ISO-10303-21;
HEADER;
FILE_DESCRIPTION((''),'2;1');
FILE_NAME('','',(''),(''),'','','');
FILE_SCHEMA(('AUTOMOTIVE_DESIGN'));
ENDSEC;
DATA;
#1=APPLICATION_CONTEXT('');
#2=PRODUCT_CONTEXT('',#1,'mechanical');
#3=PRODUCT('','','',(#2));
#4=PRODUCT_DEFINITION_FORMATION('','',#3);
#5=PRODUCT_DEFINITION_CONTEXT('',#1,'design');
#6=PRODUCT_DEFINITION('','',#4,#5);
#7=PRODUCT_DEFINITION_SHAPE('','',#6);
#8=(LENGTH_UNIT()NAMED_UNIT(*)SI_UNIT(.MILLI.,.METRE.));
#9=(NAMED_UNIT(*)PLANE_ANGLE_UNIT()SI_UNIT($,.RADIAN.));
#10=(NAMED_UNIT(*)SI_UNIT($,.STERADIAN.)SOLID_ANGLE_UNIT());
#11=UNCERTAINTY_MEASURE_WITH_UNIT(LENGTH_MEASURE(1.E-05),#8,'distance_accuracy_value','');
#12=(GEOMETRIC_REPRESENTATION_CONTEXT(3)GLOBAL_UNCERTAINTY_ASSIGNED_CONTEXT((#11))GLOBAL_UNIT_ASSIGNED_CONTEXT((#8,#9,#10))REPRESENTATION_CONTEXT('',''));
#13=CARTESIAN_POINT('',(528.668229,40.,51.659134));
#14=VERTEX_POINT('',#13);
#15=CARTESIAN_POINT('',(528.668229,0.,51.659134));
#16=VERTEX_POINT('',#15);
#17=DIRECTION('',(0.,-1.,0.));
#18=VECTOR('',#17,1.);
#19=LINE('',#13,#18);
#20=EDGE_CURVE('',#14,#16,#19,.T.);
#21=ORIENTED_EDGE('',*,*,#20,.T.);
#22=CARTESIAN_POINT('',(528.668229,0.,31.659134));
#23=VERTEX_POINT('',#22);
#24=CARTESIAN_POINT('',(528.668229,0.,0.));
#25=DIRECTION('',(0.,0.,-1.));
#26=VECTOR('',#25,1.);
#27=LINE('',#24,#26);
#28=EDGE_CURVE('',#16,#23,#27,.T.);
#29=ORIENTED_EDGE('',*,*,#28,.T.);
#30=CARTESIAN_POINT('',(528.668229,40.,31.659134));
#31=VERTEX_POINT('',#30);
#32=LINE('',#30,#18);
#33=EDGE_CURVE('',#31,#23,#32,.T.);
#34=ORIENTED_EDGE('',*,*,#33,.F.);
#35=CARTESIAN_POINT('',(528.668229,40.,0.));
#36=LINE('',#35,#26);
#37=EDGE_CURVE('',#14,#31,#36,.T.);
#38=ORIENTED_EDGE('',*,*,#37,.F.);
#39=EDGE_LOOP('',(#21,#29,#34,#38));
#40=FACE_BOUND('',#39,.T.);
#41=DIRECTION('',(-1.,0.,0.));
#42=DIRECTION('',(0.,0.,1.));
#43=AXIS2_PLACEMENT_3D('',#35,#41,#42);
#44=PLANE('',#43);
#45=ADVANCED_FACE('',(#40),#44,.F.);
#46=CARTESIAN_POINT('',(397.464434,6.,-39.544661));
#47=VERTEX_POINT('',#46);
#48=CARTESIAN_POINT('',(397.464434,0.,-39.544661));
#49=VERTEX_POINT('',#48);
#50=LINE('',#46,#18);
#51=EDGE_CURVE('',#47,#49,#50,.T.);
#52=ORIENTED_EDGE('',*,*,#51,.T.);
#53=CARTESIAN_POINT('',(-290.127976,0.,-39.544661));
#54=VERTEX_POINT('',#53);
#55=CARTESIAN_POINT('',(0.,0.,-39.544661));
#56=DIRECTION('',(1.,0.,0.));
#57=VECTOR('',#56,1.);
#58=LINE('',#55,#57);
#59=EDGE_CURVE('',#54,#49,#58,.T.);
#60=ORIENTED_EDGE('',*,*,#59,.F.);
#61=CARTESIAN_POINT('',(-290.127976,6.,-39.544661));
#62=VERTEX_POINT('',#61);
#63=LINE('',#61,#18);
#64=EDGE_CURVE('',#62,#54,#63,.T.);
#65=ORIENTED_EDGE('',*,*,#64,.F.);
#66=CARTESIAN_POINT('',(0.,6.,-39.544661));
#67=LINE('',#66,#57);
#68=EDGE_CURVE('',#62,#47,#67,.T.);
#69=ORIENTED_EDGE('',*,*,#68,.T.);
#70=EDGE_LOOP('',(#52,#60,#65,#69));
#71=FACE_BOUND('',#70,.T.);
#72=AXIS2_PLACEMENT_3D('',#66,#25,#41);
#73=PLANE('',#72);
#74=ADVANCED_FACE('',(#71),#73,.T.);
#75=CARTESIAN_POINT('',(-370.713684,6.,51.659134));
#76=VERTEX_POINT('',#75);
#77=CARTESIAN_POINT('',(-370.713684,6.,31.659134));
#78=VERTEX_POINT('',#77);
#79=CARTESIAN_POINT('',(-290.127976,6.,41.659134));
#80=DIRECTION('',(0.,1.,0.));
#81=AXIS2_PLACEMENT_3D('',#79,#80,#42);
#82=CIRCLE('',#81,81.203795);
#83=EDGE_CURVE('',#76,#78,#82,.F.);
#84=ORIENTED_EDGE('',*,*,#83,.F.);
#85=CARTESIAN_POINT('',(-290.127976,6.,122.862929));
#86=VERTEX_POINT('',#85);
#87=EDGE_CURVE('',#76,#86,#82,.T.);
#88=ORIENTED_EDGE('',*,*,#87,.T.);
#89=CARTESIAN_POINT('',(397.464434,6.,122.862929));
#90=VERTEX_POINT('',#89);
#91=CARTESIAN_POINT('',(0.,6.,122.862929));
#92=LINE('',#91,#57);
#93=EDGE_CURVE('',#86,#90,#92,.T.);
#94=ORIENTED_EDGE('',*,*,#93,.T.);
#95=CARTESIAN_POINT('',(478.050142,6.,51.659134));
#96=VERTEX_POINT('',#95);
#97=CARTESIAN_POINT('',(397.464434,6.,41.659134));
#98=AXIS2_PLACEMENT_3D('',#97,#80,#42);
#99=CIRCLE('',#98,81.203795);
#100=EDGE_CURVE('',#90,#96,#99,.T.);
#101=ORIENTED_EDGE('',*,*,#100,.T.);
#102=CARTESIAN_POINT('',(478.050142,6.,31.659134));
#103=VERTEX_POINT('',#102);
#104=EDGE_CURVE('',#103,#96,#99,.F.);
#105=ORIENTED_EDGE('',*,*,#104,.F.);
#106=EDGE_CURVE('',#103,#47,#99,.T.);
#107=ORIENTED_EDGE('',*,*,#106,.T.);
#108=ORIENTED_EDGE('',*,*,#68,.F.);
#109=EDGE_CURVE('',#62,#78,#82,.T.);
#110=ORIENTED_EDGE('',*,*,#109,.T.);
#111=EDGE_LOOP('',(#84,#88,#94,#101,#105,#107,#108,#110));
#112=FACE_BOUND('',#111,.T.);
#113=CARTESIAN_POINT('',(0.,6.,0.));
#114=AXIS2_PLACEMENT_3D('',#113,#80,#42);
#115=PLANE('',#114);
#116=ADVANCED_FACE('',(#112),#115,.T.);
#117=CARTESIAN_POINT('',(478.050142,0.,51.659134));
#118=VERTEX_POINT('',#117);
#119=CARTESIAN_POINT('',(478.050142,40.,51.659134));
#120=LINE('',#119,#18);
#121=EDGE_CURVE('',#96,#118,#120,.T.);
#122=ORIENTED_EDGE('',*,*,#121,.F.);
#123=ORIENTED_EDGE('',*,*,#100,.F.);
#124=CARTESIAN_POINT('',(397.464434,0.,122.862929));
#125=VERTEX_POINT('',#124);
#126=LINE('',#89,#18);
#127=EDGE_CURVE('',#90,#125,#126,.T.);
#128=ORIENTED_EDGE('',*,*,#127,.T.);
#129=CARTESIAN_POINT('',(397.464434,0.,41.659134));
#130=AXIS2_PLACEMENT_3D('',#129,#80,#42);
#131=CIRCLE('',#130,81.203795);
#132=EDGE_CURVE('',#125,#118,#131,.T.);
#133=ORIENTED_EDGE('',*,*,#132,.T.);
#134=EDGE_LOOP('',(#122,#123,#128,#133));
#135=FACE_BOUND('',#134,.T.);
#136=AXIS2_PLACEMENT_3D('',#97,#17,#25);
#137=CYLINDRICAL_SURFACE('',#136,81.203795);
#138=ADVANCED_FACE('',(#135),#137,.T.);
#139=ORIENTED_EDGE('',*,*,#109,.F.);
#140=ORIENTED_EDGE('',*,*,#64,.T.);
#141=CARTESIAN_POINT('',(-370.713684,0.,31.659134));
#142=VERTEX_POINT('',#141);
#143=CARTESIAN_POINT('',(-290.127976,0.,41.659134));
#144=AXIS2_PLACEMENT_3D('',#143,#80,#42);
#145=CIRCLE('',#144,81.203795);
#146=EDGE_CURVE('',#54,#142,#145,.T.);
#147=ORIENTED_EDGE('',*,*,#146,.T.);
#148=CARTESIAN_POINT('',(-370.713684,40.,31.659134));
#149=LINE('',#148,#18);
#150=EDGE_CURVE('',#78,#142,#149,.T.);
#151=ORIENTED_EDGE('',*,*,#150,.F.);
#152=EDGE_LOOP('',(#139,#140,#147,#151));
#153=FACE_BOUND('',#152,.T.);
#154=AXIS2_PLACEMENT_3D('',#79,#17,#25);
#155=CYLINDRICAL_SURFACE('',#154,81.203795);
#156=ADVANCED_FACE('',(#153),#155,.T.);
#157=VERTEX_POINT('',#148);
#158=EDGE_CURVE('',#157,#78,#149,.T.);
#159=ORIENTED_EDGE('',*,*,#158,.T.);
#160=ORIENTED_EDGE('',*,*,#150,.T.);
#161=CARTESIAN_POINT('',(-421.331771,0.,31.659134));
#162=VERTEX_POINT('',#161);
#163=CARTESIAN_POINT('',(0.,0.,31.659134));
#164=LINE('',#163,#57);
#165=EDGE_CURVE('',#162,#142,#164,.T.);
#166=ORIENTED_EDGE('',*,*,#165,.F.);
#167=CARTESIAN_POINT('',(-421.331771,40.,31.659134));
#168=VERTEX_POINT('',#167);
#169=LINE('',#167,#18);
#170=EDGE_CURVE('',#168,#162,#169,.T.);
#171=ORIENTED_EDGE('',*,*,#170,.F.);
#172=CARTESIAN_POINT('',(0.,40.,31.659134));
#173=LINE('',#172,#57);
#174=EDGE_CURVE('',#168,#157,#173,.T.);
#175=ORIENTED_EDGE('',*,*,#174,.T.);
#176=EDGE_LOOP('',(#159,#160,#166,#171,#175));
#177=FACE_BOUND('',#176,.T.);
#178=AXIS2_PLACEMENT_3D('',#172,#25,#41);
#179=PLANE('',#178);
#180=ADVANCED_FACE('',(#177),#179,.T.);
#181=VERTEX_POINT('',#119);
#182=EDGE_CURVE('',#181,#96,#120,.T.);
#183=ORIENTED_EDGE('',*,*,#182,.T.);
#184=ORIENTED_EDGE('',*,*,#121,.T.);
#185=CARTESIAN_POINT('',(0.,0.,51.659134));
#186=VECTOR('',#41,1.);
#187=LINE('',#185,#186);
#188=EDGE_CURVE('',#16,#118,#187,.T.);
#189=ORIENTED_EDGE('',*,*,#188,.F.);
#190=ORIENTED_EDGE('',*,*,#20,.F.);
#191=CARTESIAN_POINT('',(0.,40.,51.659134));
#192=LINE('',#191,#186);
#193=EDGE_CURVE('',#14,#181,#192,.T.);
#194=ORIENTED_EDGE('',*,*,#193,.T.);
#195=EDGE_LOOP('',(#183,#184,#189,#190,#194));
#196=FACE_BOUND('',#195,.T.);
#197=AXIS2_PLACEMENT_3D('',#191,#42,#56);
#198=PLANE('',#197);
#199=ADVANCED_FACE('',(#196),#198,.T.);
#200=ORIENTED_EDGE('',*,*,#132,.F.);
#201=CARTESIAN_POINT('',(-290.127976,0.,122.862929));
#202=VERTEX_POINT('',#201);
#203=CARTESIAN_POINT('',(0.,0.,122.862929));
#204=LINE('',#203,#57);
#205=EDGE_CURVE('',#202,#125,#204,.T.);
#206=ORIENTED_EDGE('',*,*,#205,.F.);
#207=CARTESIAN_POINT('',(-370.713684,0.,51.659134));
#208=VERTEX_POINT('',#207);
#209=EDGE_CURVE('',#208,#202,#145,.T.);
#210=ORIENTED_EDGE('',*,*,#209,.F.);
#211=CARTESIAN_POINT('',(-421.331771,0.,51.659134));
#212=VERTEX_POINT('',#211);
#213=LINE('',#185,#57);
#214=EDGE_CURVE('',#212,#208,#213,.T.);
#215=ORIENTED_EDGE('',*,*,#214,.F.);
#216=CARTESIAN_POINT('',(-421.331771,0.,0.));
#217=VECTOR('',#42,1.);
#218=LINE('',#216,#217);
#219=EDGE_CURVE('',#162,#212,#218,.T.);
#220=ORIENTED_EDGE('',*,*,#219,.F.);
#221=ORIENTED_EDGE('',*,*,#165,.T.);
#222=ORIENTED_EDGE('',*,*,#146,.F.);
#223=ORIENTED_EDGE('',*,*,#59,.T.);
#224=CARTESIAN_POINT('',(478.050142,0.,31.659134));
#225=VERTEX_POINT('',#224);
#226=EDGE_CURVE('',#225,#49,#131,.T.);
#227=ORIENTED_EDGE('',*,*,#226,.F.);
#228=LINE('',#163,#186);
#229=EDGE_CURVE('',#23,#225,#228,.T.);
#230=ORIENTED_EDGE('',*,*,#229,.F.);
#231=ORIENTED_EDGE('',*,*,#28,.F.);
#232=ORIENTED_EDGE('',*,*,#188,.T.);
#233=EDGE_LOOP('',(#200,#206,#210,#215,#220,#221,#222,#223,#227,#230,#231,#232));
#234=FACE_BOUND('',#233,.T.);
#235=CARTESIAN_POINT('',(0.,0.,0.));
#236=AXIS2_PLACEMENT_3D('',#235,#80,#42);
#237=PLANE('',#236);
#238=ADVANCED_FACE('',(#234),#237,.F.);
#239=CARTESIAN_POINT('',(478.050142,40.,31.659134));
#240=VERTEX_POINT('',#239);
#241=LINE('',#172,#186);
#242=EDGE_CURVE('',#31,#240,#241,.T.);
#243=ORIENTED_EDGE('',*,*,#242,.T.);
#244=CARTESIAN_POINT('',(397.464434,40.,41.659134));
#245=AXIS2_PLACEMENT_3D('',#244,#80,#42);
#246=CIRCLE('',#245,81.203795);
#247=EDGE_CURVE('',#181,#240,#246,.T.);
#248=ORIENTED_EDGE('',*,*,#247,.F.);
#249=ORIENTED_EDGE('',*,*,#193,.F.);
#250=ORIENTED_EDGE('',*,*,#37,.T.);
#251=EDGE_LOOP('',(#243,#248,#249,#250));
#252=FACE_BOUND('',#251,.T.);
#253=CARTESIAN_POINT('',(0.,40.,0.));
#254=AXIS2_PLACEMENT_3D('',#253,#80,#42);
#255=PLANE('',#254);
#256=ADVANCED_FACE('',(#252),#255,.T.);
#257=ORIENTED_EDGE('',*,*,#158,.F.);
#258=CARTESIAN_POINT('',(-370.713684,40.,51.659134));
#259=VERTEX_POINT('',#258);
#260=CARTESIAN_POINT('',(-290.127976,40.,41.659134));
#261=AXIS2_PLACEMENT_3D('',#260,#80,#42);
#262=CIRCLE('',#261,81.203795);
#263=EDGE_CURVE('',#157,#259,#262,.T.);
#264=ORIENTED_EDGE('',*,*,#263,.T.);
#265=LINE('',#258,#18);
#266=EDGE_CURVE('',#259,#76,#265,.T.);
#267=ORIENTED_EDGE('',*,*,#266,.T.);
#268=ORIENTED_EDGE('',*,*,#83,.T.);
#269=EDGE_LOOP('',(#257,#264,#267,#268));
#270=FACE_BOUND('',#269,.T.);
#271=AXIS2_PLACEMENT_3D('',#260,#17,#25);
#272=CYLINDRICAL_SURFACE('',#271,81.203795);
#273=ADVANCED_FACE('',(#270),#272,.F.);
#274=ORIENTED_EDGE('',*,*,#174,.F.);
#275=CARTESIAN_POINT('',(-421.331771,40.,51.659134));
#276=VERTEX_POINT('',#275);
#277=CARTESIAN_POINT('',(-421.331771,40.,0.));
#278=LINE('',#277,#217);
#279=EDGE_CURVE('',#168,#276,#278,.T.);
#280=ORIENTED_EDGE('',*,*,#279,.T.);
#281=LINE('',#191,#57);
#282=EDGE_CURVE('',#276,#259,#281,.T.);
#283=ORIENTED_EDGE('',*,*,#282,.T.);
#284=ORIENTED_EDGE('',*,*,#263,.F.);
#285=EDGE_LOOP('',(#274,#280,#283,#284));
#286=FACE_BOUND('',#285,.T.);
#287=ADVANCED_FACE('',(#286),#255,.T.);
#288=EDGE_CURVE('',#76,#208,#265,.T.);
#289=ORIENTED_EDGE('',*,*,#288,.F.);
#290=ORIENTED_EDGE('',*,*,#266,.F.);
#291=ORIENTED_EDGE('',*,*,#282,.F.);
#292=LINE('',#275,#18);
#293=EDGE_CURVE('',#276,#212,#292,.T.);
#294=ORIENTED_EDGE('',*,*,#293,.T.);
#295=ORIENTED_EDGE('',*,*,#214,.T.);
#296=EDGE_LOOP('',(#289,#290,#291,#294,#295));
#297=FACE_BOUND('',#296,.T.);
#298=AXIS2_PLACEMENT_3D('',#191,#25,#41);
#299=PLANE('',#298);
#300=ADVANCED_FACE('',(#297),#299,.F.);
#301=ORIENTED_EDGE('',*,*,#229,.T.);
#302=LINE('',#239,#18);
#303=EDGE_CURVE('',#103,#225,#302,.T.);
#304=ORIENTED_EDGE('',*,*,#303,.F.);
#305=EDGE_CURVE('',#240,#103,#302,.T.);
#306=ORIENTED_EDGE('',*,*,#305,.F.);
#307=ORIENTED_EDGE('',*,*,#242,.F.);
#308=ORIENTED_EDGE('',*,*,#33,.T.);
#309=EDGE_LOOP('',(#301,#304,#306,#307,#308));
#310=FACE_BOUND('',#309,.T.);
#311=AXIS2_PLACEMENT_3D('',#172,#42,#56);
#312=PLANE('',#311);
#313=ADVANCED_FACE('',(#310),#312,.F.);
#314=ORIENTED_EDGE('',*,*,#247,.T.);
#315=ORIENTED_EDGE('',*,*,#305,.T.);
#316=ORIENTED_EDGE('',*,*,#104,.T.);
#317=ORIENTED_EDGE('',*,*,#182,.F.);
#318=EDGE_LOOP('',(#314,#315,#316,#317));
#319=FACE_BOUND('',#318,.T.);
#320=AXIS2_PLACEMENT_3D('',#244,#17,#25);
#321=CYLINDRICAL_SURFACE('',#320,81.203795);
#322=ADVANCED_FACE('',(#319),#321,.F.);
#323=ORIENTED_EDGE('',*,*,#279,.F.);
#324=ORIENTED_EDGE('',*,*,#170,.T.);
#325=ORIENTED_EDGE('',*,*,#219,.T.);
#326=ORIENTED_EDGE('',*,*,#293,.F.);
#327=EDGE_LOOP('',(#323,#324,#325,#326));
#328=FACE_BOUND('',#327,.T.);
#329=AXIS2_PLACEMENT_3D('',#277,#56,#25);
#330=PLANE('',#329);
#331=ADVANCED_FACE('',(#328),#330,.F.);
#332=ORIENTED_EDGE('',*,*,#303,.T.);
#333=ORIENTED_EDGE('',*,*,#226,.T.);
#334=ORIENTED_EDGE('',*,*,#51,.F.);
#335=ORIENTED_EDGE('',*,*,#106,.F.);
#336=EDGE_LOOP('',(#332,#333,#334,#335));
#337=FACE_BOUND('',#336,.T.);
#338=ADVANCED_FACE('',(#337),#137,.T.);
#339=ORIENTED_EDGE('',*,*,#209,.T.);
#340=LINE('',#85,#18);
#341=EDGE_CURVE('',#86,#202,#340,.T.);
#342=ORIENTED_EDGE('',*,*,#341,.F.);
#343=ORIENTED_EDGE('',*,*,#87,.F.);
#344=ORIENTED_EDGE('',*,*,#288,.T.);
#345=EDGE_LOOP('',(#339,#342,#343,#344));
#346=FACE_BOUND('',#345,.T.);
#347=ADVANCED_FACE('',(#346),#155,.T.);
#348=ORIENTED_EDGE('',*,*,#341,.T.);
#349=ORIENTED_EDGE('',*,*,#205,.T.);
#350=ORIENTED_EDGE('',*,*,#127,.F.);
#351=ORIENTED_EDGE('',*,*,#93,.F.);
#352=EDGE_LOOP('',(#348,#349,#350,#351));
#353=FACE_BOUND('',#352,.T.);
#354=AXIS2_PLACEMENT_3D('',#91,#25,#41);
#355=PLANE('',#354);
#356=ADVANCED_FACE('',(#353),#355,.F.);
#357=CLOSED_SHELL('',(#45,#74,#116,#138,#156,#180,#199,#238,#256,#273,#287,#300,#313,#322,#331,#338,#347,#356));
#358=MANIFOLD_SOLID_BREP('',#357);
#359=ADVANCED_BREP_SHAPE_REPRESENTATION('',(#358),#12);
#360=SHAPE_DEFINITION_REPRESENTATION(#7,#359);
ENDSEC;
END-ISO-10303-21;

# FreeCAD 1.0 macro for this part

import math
import FreeCAD as App
import Part
import Sketcher
from FreeCAD import Vector

doc = App.newDocument("Part")
params = doc.addObject("Spreadsheet::Sheet", "Params")
for row, (alias, value) in enumerate([
    ("pad1_length", "6 mm"),
    ("sketch2_height", "20 mm"),
    ("pad2_length", "40 mm"),
], start=1):
    params.set(f"A{row}", alias)
    params.set(f"B{row}", "=" + value)
    params.setAlias(f"B{row}", alias)

body = doc.addObject("PartDesign::Body", "Body")

# Sketch on XZ plane
sketch1 = body.newObject("Sketcher::SketchObject", "Sketch")
sketch1.AttachmentSupport = (doc.getObject("XZ_Plane"), [""])
sketch1.MapMode = "FlatFace"
sketch1.addGeometry([
    Part.LineSegment(Vector(-290, 123, 0), Vector(397, 123, 0)),
    Part.ArcOfCircle(Part.Circle(Vector(397, 42, 0), Vector(0, 0, 1), 81), math.radians(-90), math.radians(90)),
    Part.LineSegment(Vector(397, -40, 0), Vector(-290, -40, 0)),
    Part.ArcOfCircle(Part.Circle(Vector(-290, 42, 0), Vector(0, 0, 1), 81), math.radians(90), math.radians(270)),
], False)
sketch1.addConstraint([
    Sketcher.Constraint("Tangent", 0, 2, 1, 2),
    Sketcher.Constraint("Tangent", 1, 1, 2, 1),
    Sketcher.Constraint("Tangent", 2, 2, 3, 2),
    Sketcher.Constraint("Tangent", 3, 1, 0, 1),
    Sketcher.Constraint("Horizontal", 0),
    Sketcher.Constraint("Horizontal", 2),
    Sketcher.Constraint("Radius", 1, 81.203795),
    Sketcher.Constraint("DistanceX", 0, 1, 0, 2, 687.59241),
    Sketcher.Constraint("DistanceY", -1, 1, 0, 2, 122.862929),
    Sketcher.Constraint("DistanceX", -1, 1, 1, 3, 397.464434),
])
pad1 = body.newObject("PartDesign::Pad", "Pad")
pad1.Profile = sketch1
pad1.setExpression("Length", "Params.pad1_length")
pad1.Reversed = True

# Sketch on XZ plane
sketch2 = body.newObject("Sketcher::SketchObject", "Sketch001")
sketch2.AttachmentSupport = (doc.getObject("XZ_Plane"), [""])
sketch2.MapMode = "FlatFace"
sketch2.addGeometry([
    Part.ArcOfCircle(Part.Circle(Vector(-290, 42, 0), Vector(0, 0, 1), 81), math.radians(172.93), math.radians(187.07)),  # 0
    Part.LineSegment(Vector(-371, 32, 0), Vector(-421, 32, 0)),  # 1
    Part.LineSegment(Vector(-421, 32, 0), Vector(-421, 52, 0)),  # 2
    Part.LineSegment(Vector(-421, 52, 0), Vector(-371, 52, 0)),  # 3
    Part.LineSegment(Vector(529, 32, 0), Vector(478, 32, 0)),  # 4
    Part.ArcOfCircle(Part.Circle(Vector(397, 42, 0), Vector(0, 0, 1), 81), math.radians(-7.07), math.radians(7.07)),  # 5
    Part.LineSegment(Vector(478, 52, 0), Vector(529, 52, 0)),  # 6
    Part.LineSegment(Vector(529, 52, 0), Vector(529, 32, 0)),  # 7
], False)
sketch2.addConstraint([
    Sketcher.Constraint("Coincident", 0, 2, 1, 1),
    Sketcher.Constraint("Coincident", 1, 2, 2, 1),
    Sketcher.Constraint("Coincident", 2, 2, 3, 1),
    Sketcher.Constraint("Coincident", 3, 2, 0, 1),
    Sketcher.Constraint("Coincident", 4, 2, 5, 1),
    Sketcher.Constraint("Coincident", 5, 2, 6, 1),
    Sketcher.Constraint("Coincident", 6, 2, 7, 1),
    Sketcher.Constraint("Coincident", 7, 2, 4, 1),
    Sketcher.Constraint("Horizontal", 1),
    Sketcher.Constraint("Vertical", 2),
    Sketcher.Constraint("Horizontal", 3),
    Sketcher.Constraint("Horizontal", 4),
    Sketcher.Constraint("Horizontal", 6),
    Sketcher.Constraint("Vertical", 7),
    Sketcher.Constraint("Equal", 0, 5),
    Sketcher.Constraint("Horizontal", 0, 3, 5, 3),
    Sketcher.Constraint("Horizontal", 1, 2, 4, 2),
    Sketcher.Constraint("Horizontal", 3, 2, 5, 2),
    Sketcher.Constraint("Vertical", 0, 2, 3, 2),
    Sketcher.Constraint("Equal", 3, 4),
    Sketcher.Constraint("DistanceY", 2, 1, 2, 2, 20.0),
    Sketcher.Constraint("Radius", 0, 81.203795),
    Sketcher.Constraint("DistanceX", 1, 2, 1, 1, 50.618087),
    Sketcher.Constraint("DistanceX", 1, 2, -1, 1, 421.331771),
    Sketcher.Constraint("DistanceX", -1, 1, 4, 2, 478.050142),
    Sketcher.Constraint("DistanceY", -1, 1, 0, 3, 41.659134),
])
sketch2.setExpression("Constraints[20]", "Params.sketch2_height")
pad2 = body.newObject("PartDesign::Pad", "Pad001")
pad2.Profile = sketch2
pad2.setExpression("Length", "Params.pad2_length")
pad2.Reversed = True

doc.recompute()
